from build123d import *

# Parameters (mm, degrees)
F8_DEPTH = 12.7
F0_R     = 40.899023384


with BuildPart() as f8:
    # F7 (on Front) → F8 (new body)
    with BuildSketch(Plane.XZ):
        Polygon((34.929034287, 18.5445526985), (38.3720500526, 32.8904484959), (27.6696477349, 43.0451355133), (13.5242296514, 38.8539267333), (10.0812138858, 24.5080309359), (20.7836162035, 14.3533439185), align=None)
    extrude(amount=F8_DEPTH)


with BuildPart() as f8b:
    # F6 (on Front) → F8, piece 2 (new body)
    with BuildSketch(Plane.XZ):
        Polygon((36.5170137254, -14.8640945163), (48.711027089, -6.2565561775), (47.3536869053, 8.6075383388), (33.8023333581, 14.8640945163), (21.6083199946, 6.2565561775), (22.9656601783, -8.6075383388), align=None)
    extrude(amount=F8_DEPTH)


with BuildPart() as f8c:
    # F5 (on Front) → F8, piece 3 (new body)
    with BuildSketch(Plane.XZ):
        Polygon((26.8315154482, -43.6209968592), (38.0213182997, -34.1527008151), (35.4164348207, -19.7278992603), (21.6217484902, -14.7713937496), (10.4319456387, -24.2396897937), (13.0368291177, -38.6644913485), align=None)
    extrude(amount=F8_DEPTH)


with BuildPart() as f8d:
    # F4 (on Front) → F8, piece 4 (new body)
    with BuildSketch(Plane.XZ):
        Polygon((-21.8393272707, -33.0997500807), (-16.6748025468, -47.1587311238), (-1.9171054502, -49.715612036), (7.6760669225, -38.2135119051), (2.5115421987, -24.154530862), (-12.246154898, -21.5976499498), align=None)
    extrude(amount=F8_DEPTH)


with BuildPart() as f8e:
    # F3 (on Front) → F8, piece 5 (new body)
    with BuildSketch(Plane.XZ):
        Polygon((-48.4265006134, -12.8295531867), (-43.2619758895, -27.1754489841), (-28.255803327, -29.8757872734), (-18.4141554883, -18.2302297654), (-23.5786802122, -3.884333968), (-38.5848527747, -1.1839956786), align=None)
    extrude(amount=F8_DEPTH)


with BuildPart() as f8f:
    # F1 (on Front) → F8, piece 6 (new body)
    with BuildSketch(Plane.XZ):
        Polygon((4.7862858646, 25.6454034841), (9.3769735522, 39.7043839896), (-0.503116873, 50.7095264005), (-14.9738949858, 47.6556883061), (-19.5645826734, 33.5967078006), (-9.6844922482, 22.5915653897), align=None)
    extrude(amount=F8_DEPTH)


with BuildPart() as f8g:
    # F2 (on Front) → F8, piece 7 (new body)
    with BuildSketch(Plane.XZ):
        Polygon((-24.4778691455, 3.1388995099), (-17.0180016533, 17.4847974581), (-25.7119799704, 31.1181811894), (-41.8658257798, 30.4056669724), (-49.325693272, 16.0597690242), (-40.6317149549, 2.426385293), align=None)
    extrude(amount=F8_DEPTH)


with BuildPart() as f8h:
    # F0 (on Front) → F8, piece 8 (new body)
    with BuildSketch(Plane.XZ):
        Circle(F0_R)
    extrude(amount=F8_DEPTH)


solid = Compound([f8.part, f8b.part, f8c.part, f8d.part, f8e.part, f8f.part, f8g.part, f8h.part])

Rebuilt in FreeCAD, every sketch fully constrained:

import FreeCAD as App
import Part
import Sketcher
from FreeCAD import Vector
Q = App.Units.Quantity

doc = App.newDocument("Part")
params = doc.addObject("Spreadsheet::Sheet", "Params")
for row, (alias, value) in enumerate([
    ("pad1_length", "0.5 in"),
    ("pad2_length", "0.5 in"),
    ("pad3_length", "0.5 in"),
    ("pad4_length", "0.5 in"),
    ("pad5_length", "0.5 in"),
    ("pad6_length", "0.5 in"),
    ("pad7_length", "0.5 in"),
    ("pad8_length", "0.5 in"),
], start=1):
    params.set(f"A{row}", alias)
    params.set(f"B{row}", "=" + value)
    params.setAlias(f"B{row}", alias)

body = doc.addObject("PartDesign::Body", "Body")

sketch1 = body.newObject("Sketcher::SketchObject", "Sketch")
sketch1.AttachmentSupport = (doc.getObject("XZ_Plane"), [""])
sketch1.MapMode = "FlatFace"
sketch1.addGeometry([
    Part.LineSegment(Vector(35, 19, 0), Vector(38, 33, 0)),
    Part.LineSegment(Vector(38, 33, 0), Vector(28, 43, 0)),
    Part.LineSegment(Vector(28, 43, 0), Vector(14, 39, 0)),
    Part.LineSegment(Vector(14, 39, 0), Vector(10, 25, 0)),
    Part.LineSegment(Vector(10, 25, 0), Vector(21, 14, 0)),
    Part.LineSegment(Vector(21, 14, 0), Vector(35, 19, 0)),
], False)
sketch1.addConstraint([
    Sketcher.Constraint("Coincident", 0, 2, 1, 1),
    Sketcher.Constraint("Coincident", 1, 2, 2, 1),
    Sketcher.Constraint("Coincident", 2, 2, 3, 1),
    Sketcher.Constraint("Coincident", 3, 2, 4, 1),
    Sketcher.Constraint("Coincident", 4, 2, 5, 1),
    Sketcher.Constraint("Coincident", 5, 2, 0, 1),
    Sketcher.Constraint("Parallel", 0, 3),
    Sketcher.Constraint("Parallel", 1, 4),
    Sketcher.Constraint("Parallel", 2, 5),
    Sketcher.Constraint("Equal", 0, 1),
    Sketcher.Constraint("Equal", 1, 2),
    Sketcher.Constraint("Equal", 2, 3),
    Sketcher.Constraint("DistanceX", -1, 1, 0, 2, Q("38.37205 mm")),
    Sketcher.Constraint("DistanceY", -1, 1, 0, 2, Q("32.890448 mm")),
    Sketcher.Constraint("DistanceX", -1, 1, 2, 2, Q("13.52423 mm")),
    Sketcher.Constraint("DistanceY", -1, 1, 3, 2, Q("24.508031 mm")),
    Sketcher.Constraint("DistanceX", 2, 2, 1, 2, Q("14.145418 mm")),
    Sketcher.Constraint("DistanceY", 2, 2, 1, 2, Q("4.191209 mm")),
])
pad1 = body.newObject("PartDesign::Pad", "Pad")
pad1.Profile = sketch1
pad1.setExpression("Length", "Params.pad1_length")
body2 = doc.addObject("PartDesign::Body", "Body001")

sketch2 = body2.newObject("Sketcher::SketchObject", "Sketch001")
sketch2.AttachmentSupport = (doc.getObject("XZ_Plane001"), [""])
sketch2.MapMode = "FlatFace"
sketch2.addGeometry([
    Part.LineSegment(Vector(37, -15, 0), Vector(49, -6, 0)),
    Part.LineSegment(Vector(49, -6, 0), Vector(47, 9, 0)),
    Part.LineSegment(Vector(47, 9, 0), Vector(34, 15, 0)),
    Part.LineSegment(Vector(34, 15, 0), Vector(22, 6, 0)),
    Part.LineSegment(Vector(22, 6, 0), Vector(23, -9, 0)),
    Part.LineSegment(Vector(23, -9, 0), Vector(37, -15, 0)),
], False)
sketch2.addConstraint([
    Sketcher.Constraint("Coincident", 0, 2, 1, 1),
    Sketcher.Constraint("Coincident", 1, 2, 2, 1),
    Sketcher.Constraint("Coincident", 2, 2, 3, 1),
    Sketcher.Constraint("Coincident", 3, 2, 4, 1),
    Sketcher.Constraint("Coincident", 4, 2, 5, 1),
    Sketcher.Constraint("Coincident", 5, 2, 0, 1),
    Sketcher.Constraint("Parallel", 0, 3),
    Sketcher.Constraint("Parallel", 1, 4),
    Sketcher.Constraint("Parallel", 2, 5),
    Sketcher.Constraint("Equal", 0, 1),
    Sketcher.Constraint("Equal", 1, 2),
    Sketcher.Constraint("Equal", 2, 3),
    Sketcher.Constraint("Distance", 0, Q("14.92594 mm")),
    Sketcher.Constraint("DistanceY", -1, 1, 1, 2, Q("8.607538 mm")),
    Sketcher.Constraint("DistanceX", -1, 1, 3, 2, Q("21.60832 mm")),
    Sketcher.Constraint("DistanceX", -1, 1, 4, 2, Q("22.96566 mm")),
    Sketcher.Constraint("DistanceY", 4, 2, -1, 1, Q("8.607538 mm")),
    Sketcher.Constraint("DistanceY", 0, 2, 2, 2, Q("21.120651 mm")),
])
pad2 = body2.newObject("PartDesign::Pad", "Pad001")
pad2.Profile = sketch2
pad2.setExpression("Length", "Params.pad2_length")
body3 = doc.addObject("PartDesign::Body", "Body002")

sketch3 = body3.newObject("Sketcher::SketchObject", "Sketch002")
sketch3.AttachmentSupport = (doc.getObject("XZ_Plane002"), [""])
sketch3.MapMode = "FlatFace"
sketch3.addGeometry([
    Part.LineSegment(Vector(27, -44, 0), Vector(38, -34, 0)),
    Part.LineSegment(Vector(38, -34, 0), Vector(35, -20, 0)),
    Part.LineSegment(Vector(35, -20, 0), Vector(22, -15, 0)),
    Part.LineSegment(Vector(22, -15, 0), Vector(10, -24, 0)),
    Part.LineSegment(Vector(10, -24, 0), Vector(13, -39, 0)),
    Part.LineSegment(Vector(13, -39, 0), Vector(27, -44, 0)),
], False)
sketch3.addConstraint([
    Sketcher.Constraint("Coincident", 0, 2, 1, 1),
    Sketcher.Constraint("Coincident", 1, 2, 2, 1),
    Sketcher.Constraint("Coincident", 2, 2, 3, 1),
    Sketcher.Constraint("Coincident", 3, 2, 4, 1),
    Sketcher.Constraint("Coincident", 4, 2, 5, 1),
    Sketcher.Constraint("Coincident", 5, 2, 0, 1),
    Sketcher.Constraint("Parallel", 0, 3),
    Sketcher.Constraint("Parallel", 1, 4),
    Sketcher.Constraint("Parallel", 2, 5),
    Sketcher.Constraint("Equal", 0, 1),
    Sketcher.Constraint("Equal", 1, 2),
    Sketcher.Constraint("Equal", 2, 3),
    Sketcher.Constraint("DistanceY", 0, 2, -1, 1, Q("34.152701 mm")),
    Sketcher.Constraint("DistanceY", 1, 2, -1, 1, Q("19.727899 mm")),
    Sketcher.Constraint("DistanceX", -1, 1, 0, 2, Q("38.021318 mm")),
    Sketcher.Constraint("DistanceX", -1, 1, 2, 2, Q("21.621748 mm")),
    Sketcher.Constraint("DistanceY", 3, 2, -1, 1, Q("24.23969 mm")),
    Sketcher.Constraint("DistanceX", -1, 1, 4, 2, Q("13.036829 mm")),
])
pad3 = body3.newObject("PartDesign::Pad", "Pad002")
pad3.Profile = sketch3
pad3.setExpression("Length", "Params.pad3_length")
body4 = doc.addObject("PartDesign::Body", "Body003")

sketch4 = body4.newObject("Sketcher::SketchObject", "Sketch003")
sketch4.AttachmentSupport = (doc.getObject("XZ_Plane003"), [""])
sketch4.MapMode = "FlatFace"
sketch4.addGeometry([
    Part.LineSegment(Vector(-22, -33, 0), Vector(-17, -47, 0)),
    Part.LineSegment(Vector(-17, -47, 0), Vector(-2, -50, 0)),
    Part.LineSegment(Vector(-2, -50, 0), Vector(8, -38, 0)),
    Part.LineSegment(Vector(8, -38, 0), Vector(3, -24, 0)),
    Part.LineSegment(Vector(3, -24, 0), Vector(-12, -22, 0)),
    Part.LineSegment(Vector(-12, -22, 0), Vector(-22, -33, 0)),
], False)
sketch4.addConstraint([
    Sketcher.Constraint("Coincident", 0, 2, 1, 1),
    Sketcher.Constraint("Coincident", 1, 2, 2, 1),
    Sketcher.Constraint("Coincident", 2, 2, 3, 1),
    Sketcher.Constraint("Coincident", 3, 2, 4, 1),
    Sketcher.Constraint("Coincident", 4, 2, 5, 1),
    Sketcher.Constraint("Coincident", 5, 2, 0, 1),
    Sketcher.Constraint("Parallel", 0, 3),
    Sketcher.Constraint("Parallel", 1, 4),
    Sketcher.Constraint("Parallel", 2, 5),
    Sketcher.Constraint("Equal", 0, 1),
    Sketcher.Constraint("Equal", 1, 2),
    Sketcher.Constraint("Equal", 2, 3),
    Sketcher.Constraint("DistanceY", 1, 2, 2, 2, Q("11.5021 mm")),
    Sketcher.Constraint("DistanceY", 0, 2, 3, 2, Q("23.0042 mm")),
    Sketcher.Constraint("Distance", 0, Q("14.977559 mm")),
    Sketcher.Constraint("DistanceY", 0, 2, -1, 1, Q("47.158731 mm")),
    Sketcher.Constraint("DistanceY", 2, 2, -1, 1, Q("38.213512 mm")),
    Sketcher.Constraint("DistanceX", 0, 2, -1, 1, Q("16.674803 mm")),
])
pad4 = body4.newObject("PartDesign::Pad", "Pad003")
pad4.Profile = sketch4
pad4.setExpression("Length", "Params.pad4_length")
body5 = doc.addObject("PartDesign::Body", "Body004")

sketch5 = body5.newObject("Sketcher::SketchObject", "Sketch004")
sketch5.AttachmentSupport = (doc.getObject("XZ_Plane004"), [""])
sketch5.MapMode = "FlatFace"
sketch5.addGeometry([
    Part.LineSegment(Vector(-48, -13, 0), Vector(-43, -27, 0)),
    Part.LineSegment(Vector(-43, -27, 0), Vector(-28, -30, 0)),
    Part.LineSegment(Vector(-28, -30, 0), Vector(-18, -18, 0)),
    Part.LineSegment(Vector(-18, -18, 0), Vector(-24, -4, 0)),
    Part.LineSegment(Vector(-24, -4, 0), Vector(-39, -1, 0)),
    Part.LineSegment(Vector(-39, -1, 0), Vector(-48, -13, 0)),
], False)
sketch5.addConstraint([
    Sketcher.Constraint("Coincident", 0, 2, 1, 1),
    Sketcher.Constraint("Coincident", 1, 2, 2, 1),
    Sketcher.Constraint("Coincident", 2, 2, 3, 1),
    Sketcher.Constraint("Coincident", 3, 2, 4, 1),
    Sketcher.Constraint("Coincident", 4, 2, 5, 1),
    Sketcher.Constraint("Coincident", 5, 2, 0, 1),
    Sketcher.Constraint("Parallel", 0, 3),
    Sketcher.Constraint("Parallel", 1, 4),
    Sketcher.Constraint("Parallel", 2, 5),
    Sketcher.Constraint("Equal", 0, 1),
    Sketcher.Constraint("Equal", 1, 2),
    Sketcher.Constraint("Equal", 2, 3),
    Sketcher.Constraint("DistanceX", 5, 2, -1, 1, Q("48.426501 mm")),
    Sketcher.Constraint("DistanceY", 0, 2, -1, 1, Q("27.175449 mm")),
    Sketcher.Constraint("DistanceY", 2, 2, -1, 1, Q("18.23023 mm")),
    Sketcher.Constraint("DistanceX", 3, 2, -1, 1, Q("23.57868 mm")),
    Sketcher.Constraint("DistanceY", 1, 2, 0, 2, Q("2.700338 mm")),
    Sketcher.Constraint("DistanceX", 4, 2, 1, 2, Q("10.329049 mm")),
])
pad5 = body5.newObject("PartDesign::Pad", "Pad004")
pad5.Profile = sketch5
pad5.setExpression("Length", "Params.pad5_length")
body6 = doc.addObject("PartDesign::Body", "Body005")

sketch6 = body6.newObject("Sketcher::SketchObject", "Sketch005")
sketch6.AttachmentSupport = (doc.getObject("XZ_Plane005"), [""])
sketch6.MapMode = "FlatFace"
sketch6.addGeometry([
    Part.LineSegment(Vector(5, 26, 0), Vector(9, 40, 0)),
    Part.LineSegment(Vector(9, 40, 0), Vector(-1, 51, 0)),
    Part.LineSegment(Vector(-1, 51, 0), Vector(-15, 48, 0)),
    Part.LineSegment(Vector(-15, 48, 0), Vector(-20, 34, 0)),
    Part.LineSegment(Vector(-20, 34, 0), Vector(-10, 23, 0)),
    Part.LineSegment(Vector(-10, 23, 0), Vector(5, 26, 0)),
], False)
sketch6.addConstraint([
    Sketcher.Constraint("Coincident", 0, 2, 1, 1),
    Sketcher.Constraint("Coincident", 1, 2, 2, 1),
    Sketcher.Constraint("Coincident", 2, 2, 3, 1),
    Sketcher.Constraint("Coincident", 3, 2, 4, 1),
    Sketcher.Constraint("Coincident", 4, 2, 5, 1),
    Sketcher.Constraint("Coincident", 5, 2, 0, 1),
    Sketcher.Constraint("Parallel", 0, 3),
    Sketcher.Constraint("Parallel", 1, 4),
    Sketcher.Constraint("Parallel", 2, 5),
    Sketcher.Constraint("Equal", 0, 1),
    Sketcher.Constraint("Equal", 1, 2),
    Sketcher.Constraint("Equal", 2, 3),
    Sketcher.Constraint("Distance", 0, Q("14.789501 mm")),
    Sketcher.Constraint("DistanceY", -1, 1, 2, 2, Q("47.655688 mm")),
    Sketcher.Constraint("DistanceX", 1, 2, 0, 2, Q("9.88009 mm")),
    Sketcher.Constraint("DistanceX", 2, 2, 1, 2, Q("14.470778 mm")),
    Sketcher.Constraint("DistanceY", 3, 2, 2, 2, Q("14.058981 mm")),
    Sketcher.Constraint("DistanceX", -1, 1, 0, 2, Q("9.376974 mm")),
])
pad6 = body6.newObject("PartDesign::Pad", "Pad005")
pad6.Profile = sketch6
pad6.setExpression("Length", "Params.pad6_length")
body7 = doc.addObject("PartDesign::Body", "Body006")

sketch7 = body7.newObject("Sketcher::SketchObject", "Sketch006")
sketch7.AttachmentSupport = (doc.getObject("XZ_Plane006"), [""])
sketch7.MapMode = "FlatFace"
sketch7.addGeometry([
    Part.LineSegment(Vector(-24, 3, 0), Vector(-17, 17, 0)),
    Part.LineSegment(Vector(-17, 17, 0), Vector(-26, 31, 0)),
    Part.LineSegment(Vector(-26, 31, 0), Vector(-42, 30, 0)),
    Part.LineSegment(Vector(-42, 30, 0), Vector(-49, 16, 0)),
    Part.LineSegment(Vector(-49, 16, 0), Vector(-41, 2, 0)),
    Part.LineSegment(Vector(-41, 2, 0), Vector(-24, 3, 0)),
], False)
sketch7.addConstraint([
    Sketcher.Constraint("Coincident", 0, 2, 1, 1),
    Sketcher.Constraint("Coincident", 1, 2, 2, 1),
    Sketcher.Constraint("Coincident", 2, 2, 3, 1),
    Sketcher.Constraint("Coincident", 3, 2, 4, 1),
    Sketcher.Constraint("Coincident", 4, 2, 5, 1),
    Sketcher.Constraint("Coincident", 5, 2, 0, 1),
    Sketcher.Constraint("Parallel", 0, 3),
    Sketcher.Constraint("Parallel", 1, 4),
    Sketcher.Constraint("Parallel", 2, 5),
    Sketcher.Constraint("Equal", 0, 1),
    Sketcher.Constraint("Equal", 1, 2),
    Sketcher.Constraint("Equal", 2, 3),
    Sketcher.Constraint("DistanceX", 0, 2, -1, 1, Q("0.6700001 in")),
    Sketcher.Constraint("DistanceY", -1, 1, 5, 2, Q("3.1389 mm")),
    Sketcher.Constraint("Distance", 0, Q("16.169552 mm")),
    Sketcher.Constraint("DistanceX", 1, 2, -1, 1, Q("25.71198 mm")),
    Sketcher.Constraint("DistanceY", -1, 1, 1, 2, Q("31.118181 mm")),
    Sketcher.Constraint("DistanceY", -1, 1, 3, 2, Q("16.059769 mm")),
])
pad7 = body7.newObject("PartDesign::Pad", "Pad006")
pad7.Profile = sketch7
pad7.setExpression("Length", "Params.pad7_length")
body8 = doc.addObject("PartDesign::Body", "Body007")

sketch8 = body8.newObject("Sketcher::SketchObject", "Sketch007")
sketch8.AttachmentSupport = (doc.getObject("XZ_Plane007"), [""])
sketch8.MapMode = "FlatFace"
sketch8.addGeometry(Part.Circle(Vector(0, 0, 0), Vector(0, 0, 1), 41), False)
sketch8.addConstraint([
    Sketcher.Constraint("Coincident", 0, 3, -1, 1),
    Sketcher.Constraint("Diameter", 0, Q("81.798047 mm")),
])
pad8 = body8.newObject("PartDesign::Pad", "Pad007")
pad8.Profile = sketch8
pad8.setExpression("Length", "Params.pad8_length")

doc.recompute()
